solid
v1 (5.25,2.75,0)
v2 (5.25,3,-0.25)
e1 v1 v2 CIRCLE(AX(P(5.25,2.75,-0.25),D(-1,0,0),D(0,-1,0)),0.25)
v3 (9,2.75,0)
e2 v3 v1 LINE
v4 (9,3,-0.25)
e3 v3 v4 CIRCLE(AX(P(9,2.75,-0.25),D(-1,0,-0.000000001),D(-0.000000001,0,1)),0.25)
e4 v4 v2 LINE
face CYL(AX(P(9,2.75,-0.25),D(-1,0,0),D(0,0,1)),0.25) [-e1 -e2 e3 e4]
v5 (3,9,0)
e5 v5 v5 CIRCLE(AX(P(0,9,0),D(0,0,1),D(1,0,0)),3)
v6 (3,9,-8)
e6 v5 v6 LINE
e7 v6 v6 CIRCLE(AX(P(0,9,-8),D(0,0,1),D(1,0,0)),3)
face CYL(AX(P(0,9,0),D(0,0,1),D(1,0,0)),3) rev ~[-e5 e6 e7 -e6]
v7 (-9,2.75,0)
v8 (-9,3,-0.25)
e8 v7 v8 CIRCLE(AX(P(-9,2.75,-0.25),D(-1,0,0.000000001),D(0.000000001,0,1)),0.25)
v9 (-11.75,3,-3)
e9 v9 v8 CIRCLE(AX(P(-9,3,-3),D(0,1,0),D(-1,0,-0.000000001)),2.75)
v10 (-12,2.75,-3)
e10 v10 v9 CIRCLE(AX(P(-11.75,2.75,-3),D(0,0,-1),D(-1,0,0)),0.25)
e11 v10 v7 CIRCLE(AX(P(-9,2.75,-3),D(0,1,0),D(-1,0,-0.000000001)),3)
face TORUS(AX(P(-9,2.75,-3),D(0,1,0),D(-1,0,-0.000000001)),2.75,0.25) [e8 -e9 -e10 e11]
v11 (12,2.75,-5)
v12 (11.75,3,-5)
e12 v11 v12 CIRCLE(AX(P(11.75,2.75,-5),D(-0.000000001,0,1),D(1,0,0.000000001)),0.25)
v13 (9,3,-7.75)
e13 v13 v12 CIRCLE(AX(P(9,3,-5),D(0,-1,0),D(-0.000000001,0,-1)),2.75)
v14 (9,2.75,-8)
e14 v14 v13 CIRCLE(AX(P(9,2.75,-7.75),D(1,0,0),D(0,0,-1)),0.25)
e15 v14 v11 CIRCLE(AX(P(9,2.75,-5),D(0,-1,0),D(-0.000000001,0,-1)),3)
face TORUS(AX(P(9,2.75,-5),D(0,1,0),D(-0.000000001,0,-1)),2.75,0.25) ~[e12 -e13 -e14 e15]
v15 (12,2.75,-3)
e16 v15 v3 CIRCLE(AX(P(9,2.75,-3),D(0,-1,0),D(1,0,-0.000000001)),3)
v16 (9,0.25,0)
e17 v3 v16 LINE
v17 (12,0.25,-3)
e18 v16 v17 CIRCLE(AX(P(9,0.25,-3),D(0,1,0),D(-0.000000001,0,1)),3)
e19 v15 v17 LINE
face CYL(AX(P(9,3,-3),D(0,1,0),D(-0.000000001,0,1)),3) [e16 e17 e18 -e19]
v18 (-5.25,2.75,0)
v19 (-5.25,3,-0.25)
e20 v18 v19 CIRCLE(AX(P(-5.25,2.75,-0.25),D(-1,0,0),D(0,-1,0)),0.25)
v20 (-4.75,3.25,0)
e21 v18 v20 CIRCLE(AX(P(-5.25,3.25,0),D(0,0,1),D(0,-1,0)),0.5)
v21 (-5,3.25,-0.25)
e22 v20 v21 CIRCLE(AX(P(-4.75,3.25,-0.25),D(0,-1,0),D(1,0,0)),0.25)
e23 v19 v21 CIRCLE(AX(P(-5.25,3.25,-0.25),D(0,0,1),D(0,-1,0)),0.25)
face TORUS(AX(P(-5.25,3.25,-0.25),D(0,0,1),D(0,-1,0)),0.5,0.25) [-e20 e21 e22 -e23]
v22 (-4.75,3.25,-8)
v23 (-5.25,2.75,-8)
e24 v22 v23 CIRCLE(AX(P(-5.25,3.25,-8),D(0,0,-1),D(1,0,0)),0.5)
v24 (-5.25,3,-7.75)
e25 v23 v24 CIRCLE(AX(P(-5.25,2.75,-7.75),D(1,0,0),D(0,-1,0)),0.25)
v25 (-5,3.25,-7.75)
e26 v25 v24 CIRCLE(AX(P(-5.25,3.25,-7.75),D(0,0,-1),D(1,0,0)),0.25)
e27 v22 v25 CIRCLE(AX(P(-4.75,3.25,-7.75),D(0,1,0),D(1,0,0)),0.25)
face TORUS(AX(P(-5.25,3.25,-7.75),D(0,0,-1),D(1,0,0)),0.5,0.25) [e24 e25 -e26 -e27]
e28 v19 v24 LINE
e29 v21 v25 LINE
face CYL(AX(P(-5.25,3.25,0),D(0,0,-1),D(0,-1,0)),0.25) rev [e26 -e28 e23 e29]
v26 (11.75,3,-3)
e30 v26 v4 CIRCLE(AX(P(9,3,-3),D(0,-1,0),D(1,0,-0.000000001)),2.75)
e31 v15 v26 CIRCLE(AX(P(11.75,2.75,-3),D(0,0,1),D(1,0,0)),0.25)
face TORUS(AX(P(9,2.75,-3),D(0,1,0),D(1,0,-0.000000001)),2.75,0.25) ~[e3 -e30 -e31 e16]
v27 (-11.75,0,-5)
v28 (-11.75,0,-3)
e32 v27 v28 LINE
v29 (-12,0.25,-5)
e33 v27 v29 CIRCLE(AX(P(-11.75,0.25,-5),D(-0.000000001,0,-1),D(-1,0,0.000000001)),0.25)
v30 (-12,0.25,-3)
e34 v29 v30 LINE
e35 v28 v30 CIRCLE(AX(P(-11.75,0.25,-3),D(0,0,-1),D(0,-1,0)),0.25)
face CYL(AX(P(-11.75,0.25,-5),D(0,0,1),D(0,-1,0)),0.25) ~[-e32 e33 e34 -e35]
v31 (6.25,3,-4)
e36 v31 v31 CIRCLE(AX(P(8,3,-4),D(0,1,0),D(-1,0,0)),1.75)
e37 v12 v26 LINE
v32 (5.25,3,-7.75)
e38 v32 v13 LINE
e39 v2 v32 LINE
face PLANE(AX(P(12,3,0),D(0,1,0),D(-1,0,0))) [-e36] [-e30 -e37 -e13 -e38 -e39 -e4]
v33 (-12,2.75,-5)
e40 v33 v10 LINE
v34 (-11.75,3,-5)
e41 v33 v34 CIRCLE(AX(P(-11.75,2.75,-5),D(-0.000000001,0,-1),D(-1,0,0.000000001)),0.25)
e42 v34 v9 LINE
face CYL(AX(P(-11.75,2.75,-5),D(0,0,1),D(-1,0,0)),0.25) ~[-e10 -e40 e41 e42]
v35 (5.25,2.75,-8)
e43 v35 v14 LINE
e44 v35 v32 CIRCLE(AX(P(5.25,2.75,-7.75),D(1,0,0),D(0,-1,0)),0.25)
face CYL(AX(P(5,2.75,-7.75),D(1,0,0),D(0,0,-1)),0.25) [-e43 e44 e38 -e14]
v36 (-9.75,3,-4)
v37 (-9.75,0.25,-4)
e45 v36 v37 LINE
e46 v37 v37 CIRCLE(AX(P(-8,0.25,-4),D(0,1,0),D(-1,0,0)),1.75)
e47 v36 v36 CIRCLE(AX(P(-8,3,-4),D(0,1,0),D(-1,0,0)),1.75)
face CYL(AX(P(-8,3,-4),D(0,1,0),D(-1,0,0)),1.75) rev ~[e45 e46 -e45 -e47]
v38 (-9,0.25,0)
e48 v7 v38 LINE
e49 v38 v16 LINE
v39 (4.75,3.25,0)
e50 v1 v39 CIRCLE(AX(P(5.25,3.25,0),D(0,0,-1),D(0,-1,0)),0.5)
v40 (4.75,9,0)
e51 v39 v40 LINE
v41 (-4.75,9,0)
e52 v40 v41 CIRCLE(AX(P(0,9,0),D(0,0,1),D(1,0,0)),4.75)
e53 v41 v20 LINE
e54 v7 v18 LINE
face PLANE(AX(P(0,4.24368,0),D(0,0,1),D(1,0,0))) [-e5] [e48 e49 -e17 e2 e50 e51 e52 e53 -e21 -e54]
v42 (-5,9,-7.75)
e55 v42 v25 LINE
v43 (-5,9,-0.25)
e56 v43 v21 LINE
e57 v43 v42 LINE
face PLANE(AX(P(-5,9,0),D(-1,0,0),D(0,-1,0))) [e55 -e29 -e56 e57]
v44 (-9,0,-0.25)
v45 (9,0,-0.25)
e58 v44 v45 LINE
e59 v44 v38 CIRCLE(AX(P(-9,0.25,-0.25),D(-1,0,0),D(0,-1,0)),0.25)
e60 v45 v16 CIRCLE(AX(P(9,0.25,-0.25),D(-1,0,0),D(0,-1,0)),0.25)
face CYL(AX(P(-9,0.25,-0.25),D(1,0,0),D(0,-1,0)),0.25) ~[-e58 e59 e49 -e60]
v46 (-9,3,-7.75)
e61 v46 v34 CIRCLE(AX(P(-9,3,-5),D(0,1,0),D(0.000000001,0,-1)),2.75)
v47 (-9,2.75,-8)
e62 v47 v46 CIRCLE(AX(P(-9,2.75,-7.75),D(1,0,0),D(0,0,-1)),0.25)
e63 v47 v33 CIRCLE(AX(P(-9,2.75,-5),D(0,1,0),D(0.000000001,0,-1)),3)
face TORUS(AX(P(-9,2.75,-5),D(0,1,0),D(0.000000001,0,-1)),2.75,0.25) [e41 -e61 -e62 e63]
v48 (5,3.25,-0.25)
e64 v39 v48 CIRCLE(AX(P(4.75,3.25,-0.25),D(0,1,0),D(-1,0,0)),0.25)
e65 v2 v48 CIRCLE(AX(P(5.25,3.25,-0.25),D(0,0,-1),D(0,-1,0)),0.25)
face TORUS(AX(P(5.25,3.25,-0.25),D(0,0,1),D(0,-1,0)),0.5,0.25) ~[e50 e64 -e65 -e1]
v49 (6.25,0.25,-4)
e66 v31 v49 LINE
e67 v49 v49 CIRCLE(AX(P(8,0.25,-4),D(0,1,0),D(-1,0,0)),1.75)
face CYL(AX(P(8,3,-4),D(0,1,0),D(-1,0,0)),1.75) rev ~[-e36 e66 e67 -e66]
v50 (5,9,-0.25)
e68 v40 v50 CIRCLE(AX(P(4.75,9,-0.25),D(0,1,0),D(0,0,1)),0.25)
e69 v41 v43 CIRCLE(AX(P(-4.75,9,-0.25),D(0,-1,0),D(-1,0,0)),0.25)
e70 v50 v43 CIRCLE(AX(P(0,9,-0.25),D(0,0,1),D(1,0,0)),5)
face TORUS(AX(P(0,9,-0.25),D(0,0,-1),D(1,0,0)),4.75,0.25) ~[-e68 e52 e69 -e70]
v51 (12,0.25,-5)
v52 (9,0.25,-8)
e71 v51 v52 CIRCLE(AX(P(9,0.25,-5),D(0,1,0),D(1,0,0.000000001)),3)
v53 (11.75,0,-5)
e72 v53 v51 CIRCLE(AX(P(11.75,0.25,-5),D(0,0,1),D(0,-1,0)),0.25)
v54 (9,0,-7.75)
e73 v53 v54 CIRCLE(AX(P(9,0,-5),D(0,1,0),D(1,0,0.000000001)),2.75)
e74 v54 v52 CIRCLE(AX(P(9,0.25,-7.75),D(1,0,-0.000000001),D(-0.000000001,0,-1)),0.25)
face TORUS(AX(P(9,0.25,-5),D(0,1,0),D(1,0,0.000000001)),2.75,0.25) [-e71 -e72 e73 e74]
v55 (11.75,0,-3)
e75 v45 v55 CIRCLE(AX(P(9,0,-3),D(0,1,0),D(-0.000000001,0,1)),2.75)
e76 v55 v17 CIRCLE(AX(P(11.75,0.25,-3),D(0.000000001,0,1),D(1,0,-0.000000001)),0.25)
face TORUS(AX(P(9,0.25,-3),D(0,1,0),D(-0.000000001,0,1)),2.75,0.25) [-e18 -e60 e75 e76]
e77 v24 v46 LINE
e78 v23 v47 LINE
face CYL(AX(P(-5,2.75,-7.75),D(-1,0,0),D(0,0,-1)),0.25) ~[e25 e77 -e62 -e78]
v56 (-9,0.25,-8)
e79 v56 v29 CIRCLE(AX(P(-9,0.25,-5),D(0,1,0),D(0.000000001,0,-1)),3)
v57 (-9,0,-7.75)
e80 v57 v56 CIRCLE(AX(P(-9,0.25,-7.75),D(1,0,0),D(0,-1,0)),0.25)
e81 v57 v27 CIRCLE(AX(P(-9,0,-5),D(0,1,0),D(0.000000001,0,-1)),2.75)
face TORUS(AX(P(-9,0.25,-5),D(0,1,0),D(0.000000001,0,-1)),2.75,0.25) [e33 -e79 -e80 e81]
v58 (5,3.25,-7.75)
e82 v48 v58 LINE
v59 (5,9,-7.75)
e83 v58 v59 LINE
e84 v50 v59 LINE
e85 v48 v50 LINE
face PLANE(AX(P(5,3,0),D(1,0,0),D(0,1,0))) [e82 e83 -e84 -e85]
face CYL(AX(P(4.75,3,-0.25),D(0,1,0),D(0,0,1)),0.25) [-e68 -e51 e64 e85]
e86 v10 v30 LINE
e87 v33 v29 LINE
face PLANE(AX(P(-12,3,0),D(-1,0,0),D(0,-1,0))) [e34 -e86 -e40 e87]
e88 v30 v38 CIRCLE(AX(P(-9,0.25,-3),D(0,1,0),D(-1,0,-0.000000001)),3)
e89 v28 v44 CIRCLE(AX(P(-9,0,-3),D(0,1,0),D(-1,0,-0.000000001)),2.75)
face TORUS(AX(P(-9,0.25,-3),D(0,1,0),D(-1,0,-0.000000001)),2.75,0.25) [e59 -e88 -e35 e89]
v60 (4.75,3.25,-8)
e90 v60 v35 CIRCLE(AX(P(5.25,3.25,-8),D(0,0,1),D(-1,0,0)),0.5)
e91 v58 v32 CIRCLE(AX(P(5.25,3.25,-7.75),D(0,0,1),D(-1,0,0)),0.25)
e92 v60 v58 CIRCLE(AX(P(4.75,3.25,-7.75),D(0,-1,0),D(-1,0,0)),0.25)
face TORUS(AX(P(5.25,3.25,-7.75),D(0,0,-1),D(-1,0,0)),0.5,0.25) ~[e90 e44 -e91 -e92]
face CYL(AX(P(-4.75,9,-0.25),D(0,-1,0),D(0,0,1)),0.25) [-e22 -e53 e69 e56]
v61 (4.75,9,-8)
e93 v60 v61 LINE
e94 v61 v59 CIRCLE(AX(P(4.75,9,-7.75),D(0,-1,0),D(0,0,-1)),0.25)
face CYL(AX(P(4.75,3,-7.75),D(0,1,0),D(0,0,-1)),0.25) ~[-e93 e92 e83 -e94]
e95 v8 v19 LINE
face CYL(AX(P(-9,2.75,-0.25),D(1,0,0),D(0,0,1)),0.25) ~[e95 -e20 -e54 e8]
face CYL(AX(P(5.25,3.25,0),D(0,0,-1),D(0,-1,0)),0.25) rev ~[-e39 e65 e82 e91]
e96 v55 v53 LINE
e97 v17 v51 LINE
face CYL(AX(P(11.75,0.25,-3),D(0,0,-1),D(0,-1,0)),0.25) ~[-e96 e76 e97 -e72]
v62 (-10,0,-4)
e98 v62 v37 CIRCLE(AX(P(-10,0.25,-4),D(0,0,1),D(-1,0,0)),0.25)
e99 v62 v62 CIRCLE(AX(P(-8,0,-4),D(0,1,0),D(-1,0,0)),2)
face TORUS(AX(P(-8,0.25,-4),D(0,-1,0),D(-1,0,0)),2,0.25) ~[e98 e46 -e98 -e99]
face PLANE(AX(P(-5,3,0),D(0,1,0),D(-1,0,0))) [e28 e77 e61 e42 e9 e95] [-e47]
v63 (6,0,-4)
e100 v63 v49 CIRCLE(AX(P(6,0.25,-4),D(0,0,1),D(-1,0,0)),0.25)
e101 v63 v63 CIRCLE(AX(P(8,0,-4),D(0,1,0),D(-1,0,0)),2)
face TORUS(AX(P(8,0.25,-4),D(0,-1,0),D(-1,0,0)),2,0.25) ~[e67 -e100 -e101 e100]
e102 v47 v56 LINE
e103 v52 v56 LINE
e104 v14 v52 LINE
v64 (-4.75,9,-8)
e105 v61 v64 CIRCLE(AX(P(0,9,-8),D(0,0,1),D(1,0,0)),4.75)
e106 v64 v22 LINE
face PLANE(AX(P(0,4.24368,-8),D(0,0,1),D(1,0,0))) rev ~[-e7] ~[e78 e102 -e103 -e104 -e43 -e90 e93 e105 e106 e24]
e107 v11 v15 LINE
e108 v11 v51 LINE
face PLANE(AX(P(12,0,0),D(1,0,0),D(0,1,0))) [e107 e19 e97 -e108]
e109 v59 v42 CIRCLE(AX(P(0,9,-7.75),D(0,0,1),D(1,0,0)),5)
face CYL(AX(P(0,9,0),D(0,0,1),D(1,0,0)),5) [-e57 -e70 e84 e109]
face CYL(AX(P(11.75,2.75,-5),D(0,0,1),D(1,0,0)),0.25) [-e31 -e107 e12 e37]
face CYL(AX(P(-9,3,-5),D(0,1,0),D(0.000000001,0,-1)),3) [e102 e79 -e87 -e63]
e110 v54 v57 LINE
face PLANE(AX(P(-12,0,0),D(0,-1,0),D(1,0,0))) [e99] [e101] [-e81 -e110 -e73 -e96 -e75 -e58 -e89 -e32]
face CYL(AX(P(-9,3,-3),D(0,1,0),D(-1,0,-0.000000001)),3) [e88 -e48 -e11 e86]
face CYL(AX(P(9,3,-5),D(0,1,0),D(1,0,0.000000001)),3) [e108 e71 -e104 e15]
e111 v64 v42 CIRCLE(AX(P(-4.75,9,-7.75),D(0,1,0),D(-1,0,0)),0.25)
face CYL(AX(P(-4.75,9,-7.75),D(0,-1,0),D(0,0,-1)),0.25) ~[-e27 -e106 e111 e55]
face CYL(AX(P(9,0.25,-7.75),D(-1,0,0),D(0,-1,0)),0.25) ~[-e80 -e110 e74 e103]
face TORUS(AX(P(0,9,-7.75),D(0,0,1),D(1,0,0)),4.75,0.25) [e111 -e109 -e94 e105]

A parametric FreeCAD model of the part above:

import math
import FreeCAD as App
import Part
import Sketcher
from FreeCAD import Vector


def edges_at(feature, points):
    """Names of the edges that pass closest to the given points."""
    edges = feature.Shape.Edges
    near = lambda p: min(range(len(edges)), key=lambda i: edges[i].distToShape(Part.Vertex(*p))[0])
    return sorted({f"Edge{near(p) + 1}" for p in points})

doc = App.newDocument("Part")
body = doc.addObject("PartDesign::Body", "Body")

sketch1 = body.newObject("Sketcher::SketchObject", "Sketch")
sketch1.AttachmentSupport = (doc.getObject("XY_Plane"), [""])
sketch1.MapMode = "FlatFace"
sketch1.addGeometry(Part.LineSegment(Vector(-12, 0, 0), Vector(12, 0, 0)), False)
sketch1.addGeometry(Part.LineSegment(Vector(12, 0, 0), Vector(12, 3, 0)), False)
sketch1.addGeometry(Part.LineSegment(Vector(12, 3, 0), Vector(5, 3, 0)), False)
sketch1.addGeometry(Part.LineSegment(Vector(5, 3, 0), Vector(5, 9, 0)), False)
sketch1.addGeometry(Part.ArcOfCircle(Part.Circle(Vector(0, 9, 0), Vector(0, 0, 1), 5), math.radians(0), math.radians(180)), False)
sketch1.addGeometry(Part.LineSegment(Vector(-5, 9, 0), Vector(-5, 3, 0)), False)
sketch1.addGeometry(Part.LineSegment(Vector(-5, 3, 0), Vector(-12, 3, 0)), False)
sketch1.addGeometry(Part.LineSegment(Vector(-12, 3, 0), Vector(-12, 0, 0)), False)
sketch1.addGeometry(Part.Circle(Vector(0, 9, 0), Vector(0, 0, 1), 3), False)
sketch1.addConstraint(Sketcher.Constraint("Coincident", 0, 2, 1, 1))
sketch1.addConstraint(Sketcher.Constraint("Coincident", 1, 2, 2, 1))
sketch1.addConstraint(Sketcher.Constraint("Coincident", 2, 2, 3, 1))
sketch1.addConstraint(Sketcher.Constraint("Tangent", 3, 2, 4, 1))
sketch1.addConstraint(Sketcher.Constraint("Tangent", 4, 2, 5, 1))
sketch1.addConstraint(Sketcher.Constraint("Coincident", 5, 2, 6, 1))
sketch1.addConstraint(Sketcher.Constraint("Coincident", 6, 2, 7, 1))
sketch1.addConstraint(Sketcher.Constraint("Coincident", 7, 2, 0, 1))
sketch1.addConstraint(Sketcher.Constraint("Horizontal", 0))
sketch1.addConstraint(Sketcher.Constraint("Vertical", 1))
sketch1.addConstraint(Sketcher.Constraint("Horizontal", 2))
sketch1.addConstraint(Sketcher.Constraint("Vertical", 3))
sketch1.addConstraint(Sketcher.Constraint("Vertical", 5))
sketch1.addConstraint(Sketcher.Constraint("Horizontal", 6))
sketch1.addConstraint(Sketcher.Constraint("Vertical", 7))
sketch1.addConstraint(Sketcher.Constraint("Coincident", 8, 3, 4, 3))
sketch1.addConstraint(Sketcher.Constraint("Symmetric", 0, 2, 7, 2, -1, 1))
sketch1.addConstraint(Sketcher.Constraint("Symmetric", 2, 2, 5, 2, -2))
sketch1.addConstraint(Sketcher.Constraint("Diameter", 8, 6.0))
sketch1.addConstraint(Sketcher.Constraint("Radius", 4, 5.0))
sketch1.addConstraint(Sketcher.Constraint("DistanceX", 0, 1, 0, 2, 24.0))
sketch1.addConstraint(Sketcher.Constraint("DistanceY", 1, 1, 1, 2, 3.0))
sketch1.addConstraint(Sketcher.Constraint("DistanceY", 3, 1, 3, 2, 6.0))
pad1 = body.newObject("PartDesign::Pad", "Pad")
pad1.Profile = sketch1
pad1.Length = 8
pad1.Reversed = True

sketch2 = body.newObject("Sketcher::SketchObject", "Sketch001")
sketch2.AttachmentSupport = (doc.getObject("XZ_Plane"), [""])
sketch2.MapMode = "FlatFace"
sketch2.AttachmentOffset = App.Placement(Vector(0, 0, -3), App.Rotation())
sketch2.addGeometry(Part.LineSegment(Vector(-15.9, -11.9, 0), Vector(-15.9, 3.9, 0)), False)
sketch2.addGeometry(Part.LineSegment(Vector(-15.9, 3.9, 0), Vector(15.9, 3.9, 0)), False)
sketch2.addGeometry(Part.LineSegment(Vector(15.9, 3.9, 0), Vector(15.9, -11.9, 0)), False)
sketch2.addGeometry(Part.LineSegment(Vector(15.9, -11.9, 0), Vector(-15.9, -11.9, 0)), False)
sketch2.addGeometry(Part.ArcOfCircle(Part.Circle(Vector(-9, -5, 0), Vector(0, 0, 1), 3), math.radians(180), math.radians(270)), False)
sketch2.addGeometry(Part.LineSegment(Vector(-9, -8, 0), Vector(9, -8, 0)), False)
sketch2.addGeometry(Part.ArcOfCircle(Part.Circle(Vector(9, -5, 0), Vector(0, 0, 1), 3), math.radians(-90), math.radians(0)), False)
sketch2.addGeometry(Part.LineSegment(Vector(12, -5, 0), Vector(12, -3, 0)), False)
sketch2.addGeometry(Part.ArcOfCircle(Part.Circle(Vector(9, -3, 0), Vector(0, 0, 1), 3), math.radians(0), math.radians(90)), False)
sketch2.addGeometry(Part.LineSegment(Vector(9, 0, 0), Vector(-9, 0, 0)), False)
sketch2.addGeometry(Part.ArcOfCircle(Part.Circle(Vector(-9, -3, 0), Vector(0, 0, 1), 3), math.radians(90), math.radians(180)), False)
sketch2.addGeometry(Part.LineSegment(Vector(-12, -3, 0), Vector(-12, -5, 0)), False)
sketch2.addGeometry(Part.Circle(Vector(8, -4, 0), Vector(0, 0, 1), 1.8), False)
sketch2.addGeometry(Part.Circle(Vector(-8, -4, 0), Vector(0, 0, 1), 1.8), False)
sketch2.addConstraint(Sketcher.Constraint("Coincident", 0, 2, 1, 1))
sketch2.addConstraint(Sketcher.Constraint("Coincident", 1, 2, 2, 1))
sketch2.addConstraint(Sketcher.Constraint("Coincident", 2, 2, 3, 1))
sketch2.addConstraint(Sketcher.Constraint("Coincident", 3, 2, 0, 1))
sketch2.addConstraint(Sketcher.Constraint("Tangent", 4, 2, 5, 1))
sketch2.addConstraint(Sketcher.Constraint("Tangent", 5, 2, 6, 1))
sketch2.addConstraint(Sketcher.Constraint("Tangent", 6, 2, 7, 1))
sketch2.addConstraint(Sketcher.Constraint("Tangent", 7, 2, 8, 1))
sketch2.addConstraint(Sketcher.Constraint("Tangent", 8, 2, 9, 1))
sketch2.addConstraint(Sketcher.Constraint("Tangent", 9, 2, 10, 1))
sketch2.addConstraint(Sketcher.Constraint("Tangent", 10, 2, 11, 1))
sketch2.addConstraint(Sketcher.Constraint("Tangent", 11, 2, 4, 1))
sketch2.addConstraint(Sketcher.Constraint("Vertical", 0))
sketch2.addConstraint(Sketcher.Constraint("Horizontal", 1))
sketch2.addConstraint(Sketcher.Constraint("Vertical", 2))
sketch2.addConstraint(Sketcher.Constraint("Horizontal", 3))
sketch2.addConstraint(Sketcher.Constraint("Horizontal", 5))
sketch2.addConstraint(Sketcher.Constraint("Vertical", 7))
sketch2.addConstraint(Sketcher.Constraint("Horizontal", 9))
sketch2.addConstraint(Sketcher.Constraint("Vertical", 11))
sketch2.addConstraint(Sketcher.Constraint("Equal", 4, 6))
sketch2.addConstraint(Sketcher.Constraint("Equal", 6, 8))
sketch2.addConstraint(Sketcher.Constraint("Equal", 8, 10))
sketch2.addConstraint(Sketcher.Constraint("Equal", 12, 13))
sketch2.addConstraint(Sketcher.Constraint("Symmetric", 8, 2, 9, 2, -1, 1))
sketch2.addConstraint(Sketcher.Constraint("Symmetric", 12, 3, 13, 3, -2))
sketch2.addConstraint(Sketcher.Constraint("Radius", 4, 3.0))
sketch2.addConstraint(Sketcher.Constraint("Diameter", 12, 3.5))
sketch2.addConstraint(Sketcher.Constraint("DistanceX", 5, 1, 5, 2, 18.0))
sketch2.addConstraint(Sketcher.Constraint("DistanceY", 7, 1, 7, 2, 2.0))
sketch2.addConstraint(Sketcher.Constraint("DistanceX", -1, 1, 12, 3, 8.0))
sketch2.addConstraint(Sketcher.Constraint("DistanceY", 12, 3, -1, 1, 4.0))
sketch2.addConstraint(Sketcher.Constraint("DistanceX", 1, 1, 1, 2, 31.782))
sketch2.addConstraint(Sketcher.Constraint("DistanceY", 0, 1, 0, 2, 15.782))
sketch2.addConstraint(Sketcher.Constraint("DistanceX", 0, 2, -1, 1, 15.891))
sketch2.addConstraint(Sketcher.Constraint("DistanceY", -1, 1, 0, 2, 3.891))
pocket1 = body.newObject("PartDesign::Pocket", "Pocket")
pocket1.Profile = sketch2
pocket1.Length = 8
pocket1.Reversed = True
doc.recompute()

fillet = body.newObject("PartDesign::Fillet", "Fillet")
fillet.Base = (pocket1, edges_at(pocket1, [
    (-5, 3, -4),
    (5, 3, -4),
    (5, 6, -8),
    (0, 14, -8),
    (-5, 6, -8),
    (0, 0, 0),
    (7, 3, 0),
    (-7, 3, -8),
    (7, 3, -8),
    (0, 0, -8),
    (-12, 0, -4),
    (12, 0, -4),
    (12, 3, -4),
    (-12, 3, -4),
    (-6.25, 0, -4),
    (11.121, 0, -7.121),
    (11.121, 3, -7.121),
    (11.121, 0, -0.879),
    (11.121, 3, -0.879),
    (-11.121, 0, -0.879),
    (-11.121, 3, -0.879),
    (-11.121, 0, -7.121),
    (-11.121, 3, -7.121),
    (9.75, 0, -4),
    (-7, 3, 0),
    (-5, 6, 0),
    (0, 14, 0),
    (5, 6, 0),
]))
fillet.Radius = 0.25

doc.recompute()
